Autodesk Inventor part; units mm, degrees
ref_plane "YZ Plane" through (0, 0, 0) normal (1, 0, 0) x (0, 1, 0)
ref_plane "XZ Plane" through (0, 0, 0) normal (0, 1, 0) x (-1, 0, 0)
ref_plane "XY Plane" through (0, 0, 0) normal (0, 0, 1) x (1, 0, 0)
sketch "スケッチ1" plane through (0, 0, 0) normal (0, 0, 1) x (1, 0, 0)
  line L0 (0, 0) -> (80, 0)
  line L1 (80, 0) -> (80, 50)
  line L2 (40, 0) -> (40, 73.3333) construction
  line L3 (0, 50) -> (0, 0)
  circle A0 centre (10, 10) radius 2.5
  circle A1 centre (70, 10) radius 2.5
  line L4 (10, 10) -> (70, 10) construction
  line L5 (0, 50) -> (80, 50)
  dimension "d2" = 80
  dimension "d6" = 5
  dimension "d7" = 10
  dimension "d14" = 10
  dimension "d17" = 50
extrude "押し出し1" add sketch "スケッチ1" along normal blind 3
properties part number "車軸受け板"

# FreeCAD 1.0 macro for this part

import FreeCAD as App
import Part
import Sketcher

V = App.Vector


def add_polygon(sketch, points):
    """Adds a closed chain of lines whose ends are joined by coincident constraints."""
    first, n = sketch.GeometryCount, len(points)
    for a, b in zip(points, points[1:] + points[:1]):
        sketch.addGeometry(Part.LineSegment(App.Vector(*a, 0), App.Vector(*b, 0)), False)
    for i in range(n):
        sketch.addConstraint(Sketcher.Constraint("Coincident", first + i, 2, first + (i + 1) % n, 1))

doc = App.newDocument("Part")
body = doc.addObject("PartDesign::Body", "Body")

# Sketch on XY plane
sketch1 = body.newObject("Sketcher::SketchObject", "Sketch")
sketch1.AttachmentSupport = (doc.getObject("XY_Plane"), [""])
sketch1.MapMode = "FlatFace"
add_polygon(sketch1, [(0, 50), (0, 0), (80, 0), (80, 50)])  # lines 0-3
sketch1.addGeometry(Part.Circle(V(10, 10, 0), V(0, 0, 1), 2.5), False)  # 4
sketch1.addGeometry(Part.Circle(V(70, 10, 0), V(0, 0, 1), 2.5), False)  # 5
sketch1.addConstraint([
    Sketcher.Constraint("Vertical", 0),
    Sketcher.Constraint("Horizontal", 1),
    Sketcher.Constraint("Vertical", 2),
    Sketcher.Constraint("Horizontal", 3),
    Sketcher.Constraint("Coincident", 0, 2, -1, 1),
    Sketcher.Constraint("Equal", 4, 5),
    Sketcher.Constraint("Horizontal", 4, 3, 5, 3),
    Sketcher.Constraint("Diameter", 4, 5.0),
    Sketcher.Constraint("DistanceX", 1, 1, 1, 2, 80.0),
    Sketcher.Constraint("DistanceY", 0, 2, 0, 1, 50.0),
    Sketcher.Constraint("DistanceX", -1, 1, 4, 3, 10.0),
    Sketcher.Constraint("DistanceY", -1, 1, 4, 3, 10.0),
    Sketcher.Constraint("DistanceX", 5, 3, 1, 2, 10.0),
])
pad1 = body.newObject("PartDesign::Pad", "Pad")
pad1.Profile = sketch1
pad1.Length = 3

doc.recompute()
